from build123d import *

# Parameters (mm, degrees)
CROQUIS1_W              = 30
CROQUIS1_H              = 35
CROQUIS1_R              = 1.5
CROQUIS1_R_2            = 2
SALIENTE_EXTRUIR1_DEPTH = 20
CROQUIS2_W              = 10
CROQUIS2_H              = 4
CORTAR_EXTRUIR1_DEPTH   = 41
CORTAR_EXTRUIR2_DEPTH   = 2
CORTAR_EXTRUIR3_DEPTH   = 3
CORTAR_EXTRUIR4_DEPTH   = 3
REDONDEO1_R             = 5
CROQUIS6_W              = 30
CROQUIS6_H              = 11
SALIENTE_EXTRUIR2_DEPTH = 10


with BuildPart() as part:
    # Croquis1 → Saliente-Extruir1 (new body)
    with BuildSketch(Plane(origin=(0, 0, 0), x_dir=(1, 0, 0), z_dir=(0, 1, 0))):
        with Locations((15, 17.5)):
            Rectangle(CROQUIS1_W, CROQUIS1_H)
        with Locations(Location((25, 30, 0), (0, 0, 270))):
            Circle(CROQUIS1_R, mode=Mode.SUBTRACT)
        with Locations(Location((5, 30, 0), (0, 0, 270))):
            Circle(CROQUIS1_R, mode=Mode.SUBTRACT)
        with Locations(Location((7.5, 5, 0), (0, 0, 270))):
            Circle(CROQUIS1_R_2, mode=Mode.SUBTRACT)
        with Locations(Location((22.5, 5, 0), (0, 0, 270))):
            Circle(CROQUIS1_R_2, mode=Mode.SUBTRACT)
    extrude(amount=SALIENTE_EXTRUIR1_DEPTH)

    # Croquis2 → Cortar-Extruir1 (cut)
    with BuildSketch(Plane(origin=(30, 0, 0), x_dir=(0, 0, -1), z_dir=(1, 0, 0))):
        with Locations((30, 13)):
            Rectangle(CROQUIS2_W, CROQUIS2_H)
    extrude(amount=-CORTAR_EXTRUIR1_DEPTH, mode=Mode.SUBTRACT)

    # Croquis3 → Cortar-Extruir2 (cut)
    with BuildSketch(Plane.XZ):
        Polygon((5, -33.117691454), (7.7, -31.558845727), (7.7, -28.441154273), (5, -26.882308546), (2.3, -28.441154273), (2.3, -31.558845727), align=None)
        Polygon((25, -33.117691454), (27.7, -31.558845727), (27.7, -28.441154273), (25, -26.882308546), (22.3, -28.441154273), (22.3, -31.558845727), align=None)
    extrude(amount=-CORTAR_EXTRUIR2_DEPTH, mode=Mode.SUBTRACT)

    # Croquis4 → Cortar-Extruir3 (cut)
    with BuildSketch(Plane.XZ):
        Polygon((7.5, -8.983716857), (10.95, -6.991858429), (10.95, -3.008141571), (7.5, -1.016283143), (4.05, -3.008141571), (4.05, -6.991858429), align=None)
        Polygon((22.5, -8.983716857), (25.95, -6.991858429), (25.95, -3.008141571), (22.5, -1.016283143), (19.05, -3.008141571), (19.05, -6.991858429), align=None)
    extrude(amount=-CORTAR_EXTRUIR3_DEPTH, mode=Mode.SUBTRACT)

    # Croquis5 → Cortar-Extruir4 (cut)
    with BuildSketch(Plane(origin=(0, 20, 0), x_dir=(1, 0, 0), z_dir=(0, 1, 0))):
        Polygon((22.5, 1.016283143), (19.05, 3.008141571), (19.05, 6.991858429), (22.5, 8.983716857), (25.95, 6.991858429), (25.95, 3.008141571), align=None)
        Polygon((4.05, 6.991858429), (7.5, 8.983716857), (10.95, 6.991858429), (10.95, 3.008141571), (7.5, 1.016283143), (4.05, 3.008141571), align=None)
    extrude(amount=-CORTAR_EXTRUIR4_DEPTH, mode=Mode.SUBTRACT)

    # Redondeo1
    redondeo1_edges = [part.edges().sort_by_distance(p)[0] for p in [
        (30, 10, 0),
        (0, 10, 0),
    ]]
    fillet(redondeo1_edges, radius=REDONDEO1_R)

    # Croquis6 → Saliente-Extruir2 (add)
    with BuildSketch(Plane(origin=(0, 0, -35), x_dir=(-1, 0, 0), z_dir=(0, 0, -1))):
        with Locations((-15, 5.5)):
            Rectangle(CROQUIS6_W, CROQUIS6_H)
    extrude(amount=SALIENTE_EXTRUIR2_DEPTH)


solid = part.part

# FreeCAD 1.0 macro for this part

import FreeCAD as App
import Part
import Sketcher

V = App.Vector
Q = App.Units.Quantity


def edges_at(feature, points):
    """Names of the edges that pass closest to the given points."""
    edges = feature.Shape.Edges
    near = lambda p: min(range(len(edges)), key=lambda i: edges[i].distToShape(Part.Vertex(*p))[0])
    return sorted({f"Edge{near(p) + 1}" for p in points})

doc = App.newDocument("Part")
body = doc.addObject("PartDesign::Body", "Body")

sketch1 = body.newObject("Sketcher::SketchObject", "Sketch")
sketch1.AttachmentSupport = (doc.getObject("XZ_Plane"), [""])
sketch1.MapMode = "FlatFace"
sketch1.addGeometry(Part.LineSegment(V(0, -35, 0), V(0, 0, 0)), False)
sketch1.addGeometry(Part.LineSegment(V(0, 0, 0), V(30, 0, 0)), False)
sketch1.addGeometry(Part.LineSegment(V(30, 0, 0), V(30, -35, 0)), False)
sketch1.addGeometry(Part.LineSegment(V(30, -35, 0), V(0, -35, 0)), False)
sketch1.addGeometry(Part.Circle(V(7.5, -5, 0), V(0, 0, 1), 2), False)
sketch1.addGeometry(Part.Circle(V(22.5, -5, 0), V(0, 0, 1), 2), False)
sketch1.addGeometry(Part.Circle(V(5, -30, 0), V(0, 0, 1), 1.5), False)
sketch1.addGeometry(Part.Circle(V(25, -30, 0), V(0, 0, 1), 1.5), False)
sketch1.addConstraint(Sketcher.Constraint("Coincident", 0, 2, 1, 1))
sketch1.addConstraint(Sketcher.Constraint("Coincident", 1, 2, 2, 1))
sketch1.addConstraint(Sketcher.Constraint("Coincident", 2, 2, 3, 1))
sketch1.addConstraint(Sketcher.Constraint("Coincident", 3, 2, 0, 1))
sketch1.addConstraint(Sketcher.Constraint("Vertical", 0))
sketch1.addConstraint(Sketcher.Constraint("Horizontal", 1))
sketch1.addConstraint(Sketcher.Constraint("Vertical", 2))
sketch1.addConstraint(Sketcher.Constraint("Horizontal", 3))
sketch1.addConstraint(Sketcher.Constraint("Coincident", 0, 2, -1, 1))
sketch1.addConstraint(Sketcher.Constraint("Equal", 4, 5))
sketch1.addConstraint(Sketcher.Constraint("Equal", 6, 7))
sketch1.addConstraint(Sketcher.Constraint("Horizontal", 4, 3, 5, 3))
sketch1.addConstraint(Sketcher.Constraint("Horizontal", 6, 3, 7, 3))
sketch1.addConstraint(Sketcher.Constraint("Diameter", 4, 4.0))
sketch1.addConstraint(Sketcher.Constraint("Diameter", 6, 3.0))
sketch1.addConstraint(Sketcher.Constraint("DistanceX", 1, 1, 1, 2, 30.0))
sketch1.addConstraint(Sketcher.Constraint("DistanceY", 0, 1, 0, 2, 35.0))
sketch1.addConstraint(Sketcher.Constraint("DistanceY", 4, 3, -1, 1, 5.0))
sketch1.addConstraint(Sketcher.Constraint("DistanceX", -1, 1, 6, 3, 5.0))
sketch1.addConstraint(Sketcher.Constraint("DistanceY", 6, 3, -1, 1, 30.0))
sketch1.addConstraint(Sketcher.Constraint("DistanceX", -1, 1, 7, 3, 25.0))
sketch1.addConstraint(Sketcher.Constraint("DistanceX", 4, 3, 5, 3, 15.0))
sketch1.addConstraint(Sketcher.Constraint("DistanceX", -1, 1, 4, 3, 7.5))
pad1 = body.newObject("PartDesign::Pad", "Pad")
pad1.Profile = sketch1
pad1.Length = 20
pad1.Reversed = True

sketch2 = body.newObject("Sketcher::SketchObject", "Sketch001")
sketch2.AttachmentSupport = (doc.getObject("YZ_Plane"), [""])
sketch2.MapMode = "FlatFace"
sketch2.AttachmentOffset = App.Placement(V(0, 0, 30), App.Rotation())
sketch2.addGeometry(Part.LineSegment(V(15, -25, 0), V(11, -25, 0)), False)
sketch2.addGeometry(Part.LineSegment(V(11, -25, 0), V(11, -35, 0)), False)
sketch2.addGeometry(Part.LineSegment(V(11, -35, 0), V(15, -35, 0)), False)
sketch2.addGeometry(Part.LineSegment(V(15, -35, 0), V(15, -25, 0)), False)
sketch2.addConstraint(Sketcher.Constraint("Coincident", 0, 2, 1, 1))
sketch2.addConstraint(Sketcher.Constraint("Coincident", 1, 2, 2, 1))
sketch2.addConstraint(Sketcher.Constraint("Coincident", 2, 2, 3, 1))
sketch2.addConstraint(Sketcher.Constraint("Coincident", 3, 2, 0, 1))
sketch2.addConstraint(Sketcher.Constraint("Horizontal", 0))
sketch2.addConstraint(Sketcher.Constraint("Vertical", 1))
sketch2.addConstraint(Sketcher.Constraint("Horizontal", 2))
sketch2.addConstraint(Sketcher.Constraint("Vertical", 3))
sketch2.addConstraint(Sketcher.Constraint("DistanceX", 0, 2, 0, 1, 4.0))
sketch2.addConstraint(Sketcher.Constraint("DistanceY", 1, 2, 1, 1, 10.0))
sketch2.addConstraint(Sketcher.Constraint("DistanceX", -1, 1, 0, 2, 11.0))
sketch2.addConstraint(Sketcher.Constraint("DistanceY", 0, 2, -1, 1, 25.0))
pocket1 = body.newObject("PartDesign::Pocket", "Pocket")
pocket1.Profile = sketch2
pocket1.Length = 41

sketch3 = body.newObject("Sketcher::SketchObject", "Sketch002")
sketch3.AttachmentSupport = (doc.getObject("XZ_Plane"), [""])
sketch3.MapMode = "FlatFace"
sketch3.addGeometry(Part.LineSegment(V(5, -33.117691, 0), V(7.7, -31.558846, 0)), False)
sketch3.addGeometry(Part.LineSegment(V(7.7, -31.558846, 0), V(7.7, -28.441154, 0)), False)
sketch3.addGeometry(Part.LineSegment(V(7.7, -28.441154, 0), V(5, -26.882309, 0)), False)
sketch3.addGeometry(Part.LineSegment(V(5, -26.882309, 0), V(2.3, -28.441154, 0)), False)
sketch3.addGeometry(Part.LineSegment(V(2.3, -28.441154, 0), V(2.3, -31.558846, 0)), False)
sketch3.addGeometry(Part.LineSegment(V(2.3, -31.558846, 0), V(5, -33.117691, 0)), False)
sketch3.addGeometry(Part.LineSegment(V(25, -33.117691, 0), V(27.7, -31.558846, 0)), False)
sketch3.addGeometry(Part.LineSegment(V(27.7, -31.558846, 0), V(27.7, -28.441154, 0)), False)
sketch3.addGeometry(Part.LineSegment(V(27.7, -28.441154, 0), V(25, -26.882309, 0)), False)
sketch3.addGeometry(Part.LineSegment(V(25, -26.882309, 0), V(22.3, -28.441154, 0)), False)
sketch3.addGeometry(Part.LineSegment(V(22.3, -28.441154, 0), V(22.3, -31.558846, 0)), False)
sketch3.addGeometry(Part.LineSegment(V(22.3, -31.558846, 0), V(25, -33.117691, 0)), False)
sketch3.addConstraint(Sketcher.Constraint("Coincident", 0, 2, 1, 1))
sketch3.addConstraint(Sketcher.Constraint("Coincident", 1, 2, 2, 1))
sketch3.addConstraint(Sketcher.Constraint("Coincident", 2, 2, 3, 1))
sketch3.addConstraint(Sketcher.Constraint("Coincident", 3, 2, 4, 1))
sketch3.addConstraint(Sketcher.Constraint("Coincident", 4, 2, 5, 1))
sketch3.addConstraint(Sketcher.Constraint("Coincident", 5, 2, 0, 1))
sketch3.addConstraint(Sketcher.Constraint("Coincident", 6, 2, 7, 1))
sketch3.addConstraint(Sketcher.Constraint("Coincident", 7, 2, 8, 1))
sketch3.addConstraint(Sketcher.Constraint("Coincident", 8, 2, 9, 1))
sketch3.addConstraint(Sketcher.Constraint("Coincident", 9, 2, 10, 1))
sketch3.addConstraint(Sketcher.Constraint("Coincident", 10, 2, 11, 1))
sketch3.addConstraint(Sketcher.Constraint("Coincident", 11, 2, 6, 1))
sketch3.addConstraint(Sketcher.Constraint("Vertical", 1))
sketch3.addConstraint(Sketcher.Constraint("Vertical", 4))
sketch3.addConstraint(Sketcher.Constraint("Vertical", 7))
sketch3.addConstraint(Sketcher.Constraint("Vertical", 10))
sketch3.addConstraint(Sketcher.Constraint("Parallel", 0, 3))
sketch3.addConstraint(Sketcher.Constraint("Parallel", 2, 5))
sketch3.addConstraint(Sketcher.Constraint("Parallel", 3, 6))
sketch3.addConstraint(Sketcher.Constraint("Parallel", 5, 8))
sketch3.addConstraint(Sketcher.Constraint("Parallel", 6, 9))
sketch3.addConstraint(Sketcher.Constraint("Parallel", 8, 11))
sketch3.addConstraint(Sketcher.Constraint("Horizontal", 1, 2, 3, 2))
sketch3.addConstraint(Sketcher.Constraint("Horizontal", 0, 2, 4, 2))
sketch3.addConstraint(Sketcher.Constraint("Horizontal", 4, 2, 6, 2))
sketch3.addConstraint(Sketcher.Constraint("Horizontal", 3, 2, 7, 2))
sketch3.addConstraint(Sketcher.Constraint("Horizontal", 2, 2, 8, 2))
sketch3.addConstraint(Sketcher.Constraint("Horizontal", 7, 2, 9, 2))
sketch3.addConstraint(Sketcher.Constraint("Horizontal", 6, 2, 10, 2))
sketch3.addConstraint(Sketcher.Constraint("Vertical", 2, 2, 5, 2))
sketch3.addConstraint(Sketcher.Constraint("Angle", 0, Q("30 deg")))
sketch3.addConstraint(Sketcher.Constraint("DistanceX", -1, 1, 2, 2, 5.0))
sketch3.addConstraint(Sketcher.Constraint("DistanceX", -1, 1, 8, 2, 25.0))
sketch3.addConstraint(Sketcher.Constraint("DistanceX", -1, 1, 0, 2, 7.7))
sketch3.addConstraint(Sketcher.Constraint("DistanceY", 1, 1, 1, 2, 3.117691))
sketch3.addConstraint(Sketcher.Constraint("DistanceY", 2, 2, -1, 1, 26.882309))
pocket2 = body.newObject("PartDesign::Pocket", "Pocket001")
pocket2.Profile = sketch3
pocket2.Length = 2

sketch4 = body.newObject("Sketcher::SketchObject", "Sketch003")
sketch4.AttachmentSupport = (doc.getObject("XZ_Plane"), [""])
sketch4.MapMode = "FlatFace"
sketch4.addGeometry(Part.LineSegment(V(7.5, -8.983717, 0), V(10.95, -6.991858, 0)), False)
sketch4.addGeometry(Part.LineSegment(V(10.95, -6.991858, 0), V(10.95, -3.008142, 0)), False)
sketch4.addGeometry(Part.LineSegment(V(10.95, -3.008142, 0), V(7.5, -1.016283, 0)), False)
sketch4.addGeometry(Part.LineSegment(V(7.5, -1.016283, 0), V(4.05, -3.008142, 0)), False)
sketch4.addGeometry(Part.LineSegment(V(4.05, -3.008142, 0), V(4.05, -6.991858, 0)), False)
sketch4.addGeometry(Part.LineSegment(V(4.05, -6.991858, 0), V(7.5, -8.983717, 0)), False)
sketch4.addGeometry(Part.LineSegment(V(22.5, -8.983717, 0), V(25.95, -6.991858, 0)), False)
sketch4.addGeometry(Part.LineSegment(V(25.95, -6.991858, 0), V(25.95, -3.008142, 0)), False)
sketch4.addGeometry(Part.LineSegment(V(25.95, -3.008142, 0), V(22.5, -1.016283, 0)), False)
sketch4.addGeometry(Part.LineSegment(V(22.5, -1.016283, 0), V(19.05, -3.008142, 0)), False)
sketch4.addGeometry(Part.LineSegment(V(19.05, -3.008142, 0), V(19.05, -6.991858, 0)), False)
sketch4.addGeometry(Part.LineSegment(V(19.05, -6.991858, 0), V(22.5, -8.983717, 0)), False)
sketch4.addConstraint(Sketcher.Constraint("Coincident", 0, 2, 1, 1))
sketch4.addConstraint(Sketcher.Constraint("Coincident", 1, 2, 2, 1))
sketch4.addConstraint(Sketcher.Constraint("Coincident", 2, 2, 3, 1))
sketch4.addConstraint(Sketcher.Constraint("Coincident", 3, 2, 4, 1))
sketch4.addConstraint(Sketcher.Constraint("Coincident", 4, 2, 5, 1))
sketch4.addConstraint(Sketcher.Constraint("Coincident", 5, 2, 0, 1))
sketch4.addConstraint(Sketcher.Constraint("Coincident", 6, 2, 7, 1))
sketch4.addConstraint(Sketcher.Constraint("Coincident", 7, 2, 8, 1))
sketch4.addConstraint(Sketcher.Constraint("Coincident", 8, 2, 9, 1))
sketch4.addConstraint(Sketcher.Constraint("Coincident", 9, 2, 10, 1))
sketch4.addConstraint(Sketcher.Constraint("Coincident", 10, 2, 11, 1))
sketch4.addConstraint(Sketcher.Constraint("Coincident", 11, 2, 6, 1))
sketch4.addConstraint(Sketcher.Constraint("Vertical", 1))
sketch4.addConstraint(Sketcher.Constraint("Vertical", 4))
sketch4.addConstraint(Sketcher.Constraint("Vertical", 7))
sketch4.addConstraint(Sketcher.Constraint("Vertical", 10))
sketch4.addConstraint(Sketcher.Constraint("Parallel", 0, 3))
sketch4.addConstraint(Sketcher.Constraint("Parallel", 2, 5))
sketch4.addConstraint(Sketcher.Constraint("Parallel", 3, 6))
sketch4.addConstraint(Sketcher.Constraint("Parallel", 5, 8))
sketch4.addConstraint(Sketcher.Constraint("Parallel", 6, 9))
sketch4.addConstraint(Sketcher.Constraint("Parallel", 8, 11))
sketch4.addConstraint(Sketcher.Constraint("Horizontal", 1, 2, 3, 2))
sketch4.addConstraint(Sketcher.Constraint("Horizontal", 0, 2, 4, 2))
sketch4.addConstraint(Sketcher.Constraint("Horizontal", 4, 2, 6, 2))
sketch4.addConstraint(Sketcher.Constraint("Horizontal", 3, 2, 7, 2))
sketch4.addConstraint(Sketcher.Constraint("Horizontal", 2, 2, 8, 2))
sketch4.addConstraint(Sketcher.Constraint("Horizontal", 7, 2, 9, 2))
sketch4.addConstraint(Sketcher.Constraint("Horizontal", 6, 2, 10, 2))
sketch4.addConstraint(Sketcher.Constraint("Vertical", 2, 2, 5, 2))
sketch4.addConstraint(Sketcher.Constraint("Angle", 0, Q("30 deg")))
sketch4.addConstraint(Sketcher.Constraint("DistanceX", 0, 2, 6, 2, 15.0))
sketch4.addConstraint(Sketcher.Constraint("DistanceX", -1, 1, 2, 2, 7.5))
sketch4.addConstraint(Sketcher.Constraint("DistanceX", 3, 2, 1, 2, 6.9))
sketch4.addConstraint(Sketcher.Constraint("DistanceY", 1, 1, 1, 2, 3.983717))
sketch4.addConstraint(Sketcher.Constraint("DistanceY", 0, 2, -1, 1, 6.991858))
pocket3 = body.newObject("PartDesign::Pocket", "Pocket002")
pocket3.Profile = sketch4
pocket3.Length = 3

sketch5 = body.newObject("Sketcher::SketchObject", "Sketch004")
sketch5.AttachmentSupport = (doc.getObject("XZ_Plane"), [""])
sketch5.MapMode = "FlatFace"
sketch5.AttachmentOffset = App.Placement(V(0, 0, -20), App.Rotation())
sketch5.addGeometry(Part.LineSegment(V(19.05, -3.008142, 0), V(22.5, -1.016283, 0)), False)
sketch5.addGeometry(Part.LineSegment(V(22.5, -1.016283, 0), V(25.95, -3.008142, 0)), False)
sketch5.addGeometry(Part.LineSegment(V(25.95, -3.008142, 0), V(25.95, -6.991858, 0)), False)
sketch5.addGeometry(Part.LineSegment(V(25.95, -6.991858, 0), V(22.5, -8.983717, 0)), False)
sketch5.addGeometry(Part.LineSegment(V(22.5, -8.983717, 0), V(19.05, -6.991858, 0)), False)
sketch5.addGeometry(Part.LineSegment(V(19.05, -6.991858, 0), V(19.05, -3.008142, 0)), False)
sketch5.addGeometry(Part.LineSegment(V(7.5, -8.983717, 0), V(4.05, -6.991858, 0)), False)
sketch5.addGeometry(Part.LineSegment(V(4.05, -6.991858, 0), V(4.05, -3.008142, 0)), False)
sketch5.addGeometry(Part.LineSegment(V(4.05, -3.008142, 0), V(7.5, -1.016283, 0)), False)
sketch5.addGeometry(Part.LineSegment(V(7.5, -1.016283, 0), V(10.95, -3.008142, 0)), False)
sketch5.addGeometry(Part.LineSegment(V(10.95, -3.008142, 0), V(10.95, -6.991858, 0)), False)
sketch5.addGeometry(Part.LineSegment(V(10.95, -6.991858, 0), V(7.5, -8.983717, 0)), False)
sketch5.addConstraint(Sketcher.Constraint("Coincident", 0, 2, 1, 1))
sketch5.addConstraint(Sketcher.Constraint("Coincident", 1, 2, 2, 1))
sketch5.addConstraint(Sketcher.Constraint("Coincident", 2, 2, 3, 1))
sketch5.addConstraint(Sketcher.Constraint("Coincident", 3, 2, 4, 1))
sketch5.addConstraint(Sketcher.Constraint("Coincident", 4, 2, 5, 1))
sketch5.addConstraint(Sketcher.Constraint("Coincident", 5, 2, 0, 1))
sketch5.addConstraint(Sketcher.Constraint("Coincident", 6, 2, 7, 1))
sketch5.addConstraint(Sketcher.Constraint("Coincident", 7, 2, 8, 1))
sketch5.addConstraint(Sketcher.Constraint("Coincident", 8, 2, 9, 1))
sketch5.addConstraint(Sketcher.Constraint("Coincident", 9, 2, 10, 1))
sketch5.addConstraint(Sketcher.Constraint("Coincident", 10, 2, 11, 1))
sketch5.addConstraint(Sketcher.Constraint("Coincident", 11, 2, 6, 1))
sketch5.addConstraint(Sketcher.Constraint("Vertical", 2))
sketch5.addConstraint(Sketcher.Constraint("Vertical", 5))
sketch5.addConstraint(Sketcher.Constraint("Vertical", 7))
sketch5.addConstraint(Sketcher.Constraint("Vertical", 10))
sketch5.addConstraint(Sketcher.Constraint("Parallel", 0, 3))
sketch5.addConstraint(Sketcher.Constraint("Parallel", 1, 4))
sketch5.addConstraint(Sketcher.Constraint("Parallel", 4, 6))
sketch5.addConstraint(Sketcher.Constraint("Parallel", 3, 8))
sketch5.addConstraint(Sketcher.Constraint("Parallel", 6, 9))
sketch5.addConstraint(Sketcher.Constraint("Parallel", 8, 11))
sketch5.addConstraint(Sketcher.Constraint("Horizontal", 2, 2, 4, 2))
sketch5.addConstraint(Sketcher.Constraint("Horizontal", 1, 2, 5, 2))
sketch5.addConstraint(Sketcher.Constraint("Horizontal", 4, 2, 6, 2))
sketch5.addConstraint(Sketcher.Constraint("Horizontal", 5, 2, 7, 2))
sketch5.addConstraint(Sketcher.Constraint("Horizontal", 0, 2, 8, 2))
sketch5.addConstraint(Sketcher.Constraint("Horizontal", 7, 2, 9, 2))
sketch5.addConstraint(Sketcher.Constraint("Horizontal", 6, 2, 10, 2))
sketch5.addConstraint(Sketcher.Constraint("Vertical", 0, 2, 3, 2))
sketch5.addConstraint(Sketcher.Constraint("Angle", 0, Q("30 deg")))
sketch5.addConstraint(Sketcher.Constraint("DistanceX", 6, 2, 4, 2, 15.0))
sketch5.addConstraint(Sketcher.Constraint("DistanceX", -1, 1, 0, 2, 22.5))
sketch5.addConstraint(Sketcher.Constraint("DistanceX", 4, 2, 2, 2, 6.9))
sketch5.addConstraint(Sketcher.Constraint("DistanceY", 2, 2, 2, 1, 3.983717))
sketch5.addConstraint(Sketcher.Constraint("DistanceY", 1, 2, -1, 1, 3.008142))
pocket4 = body.newObject("PartDesign::Pocket", "Pocket003")
pocket4.Profile = sketch5
pocket4.Length = 3
pocket4.Reversed = True
doc.recompute()

fillet = body.newObject("PartDesign::Fillet", "Fillet")
fillet.Base = (pocket4, edges_at(pocket4, [(30, 10, 0), (0, 10, 0)]))
fillet.Radius = 5

sketch6 = body.newObject("Sketcher::SketchObject", "Sketch005")
sketch6.AttachmentSupport = (doc.getObject("XY_Plane"), [""])
sketch6.MapMode = "FlatFace"
sketch6.AttachmentOffset = App.Placement(V(0, 0, -35), App.Rotation())
sketch6.addGeometry(Part.LineSegment(V(30, 11, 0), V(30, 0, 0)), False)
sketch6.addGeometry(Part.LineSegment(V(30, 0, 0), V(0, 0, 0)), False)
sketch6.addGeometry(Part.LineSegment(V(0, 0, 0), V(0, 11, 0)), False)
sketch6.addGeometry(Part.LineSegment(V(0, 11, 0), V(30, 11, 0)), False)
sketch6.addConstraint(Sketcher.Constraint("Coincident", 0, 2, 1, 1))
sketch6.addConstraint(Sketcher.Constraint("Coincident", 1, 2, 2, 1))
sketch6.addConstraint(Sketcher.Constraint("Coincident", 2, 2, 3, 1))
sketch6.addConstraint(Sketcher.Constraint("Coincident", 3, 2, 0, 1))
sketch6.addConstraint(Sketcher.Constraint("Vertical", 0))
sketch6.addConstraint(Sketcher.Constraint("Horizontal", 1))
sketch6.addConstraint(Sketcher.Constraint("Vertical", 2))
sketch6.addConstraint(Sketcher.Constraint("Horizontal", 3))
sketch6.addConstraint(Sketcher.Constraint("Coincident", 1, 2, -1, 1))
sketch6.addConstraint(Sketcher.Constraint("DistanceX", 1, 2, 1, 1, 30.0))
sketch6.addConstraint(Sketcher.Constraint("DistanceY", 0, 2, 0, 1, 11.0))
pad2 = body.newObject("PartDesign::Pad", "Pad001")
pad2.Profile = sketch6
pad2.Length = 10
pad2.Reversed = True

doc.recompute()
